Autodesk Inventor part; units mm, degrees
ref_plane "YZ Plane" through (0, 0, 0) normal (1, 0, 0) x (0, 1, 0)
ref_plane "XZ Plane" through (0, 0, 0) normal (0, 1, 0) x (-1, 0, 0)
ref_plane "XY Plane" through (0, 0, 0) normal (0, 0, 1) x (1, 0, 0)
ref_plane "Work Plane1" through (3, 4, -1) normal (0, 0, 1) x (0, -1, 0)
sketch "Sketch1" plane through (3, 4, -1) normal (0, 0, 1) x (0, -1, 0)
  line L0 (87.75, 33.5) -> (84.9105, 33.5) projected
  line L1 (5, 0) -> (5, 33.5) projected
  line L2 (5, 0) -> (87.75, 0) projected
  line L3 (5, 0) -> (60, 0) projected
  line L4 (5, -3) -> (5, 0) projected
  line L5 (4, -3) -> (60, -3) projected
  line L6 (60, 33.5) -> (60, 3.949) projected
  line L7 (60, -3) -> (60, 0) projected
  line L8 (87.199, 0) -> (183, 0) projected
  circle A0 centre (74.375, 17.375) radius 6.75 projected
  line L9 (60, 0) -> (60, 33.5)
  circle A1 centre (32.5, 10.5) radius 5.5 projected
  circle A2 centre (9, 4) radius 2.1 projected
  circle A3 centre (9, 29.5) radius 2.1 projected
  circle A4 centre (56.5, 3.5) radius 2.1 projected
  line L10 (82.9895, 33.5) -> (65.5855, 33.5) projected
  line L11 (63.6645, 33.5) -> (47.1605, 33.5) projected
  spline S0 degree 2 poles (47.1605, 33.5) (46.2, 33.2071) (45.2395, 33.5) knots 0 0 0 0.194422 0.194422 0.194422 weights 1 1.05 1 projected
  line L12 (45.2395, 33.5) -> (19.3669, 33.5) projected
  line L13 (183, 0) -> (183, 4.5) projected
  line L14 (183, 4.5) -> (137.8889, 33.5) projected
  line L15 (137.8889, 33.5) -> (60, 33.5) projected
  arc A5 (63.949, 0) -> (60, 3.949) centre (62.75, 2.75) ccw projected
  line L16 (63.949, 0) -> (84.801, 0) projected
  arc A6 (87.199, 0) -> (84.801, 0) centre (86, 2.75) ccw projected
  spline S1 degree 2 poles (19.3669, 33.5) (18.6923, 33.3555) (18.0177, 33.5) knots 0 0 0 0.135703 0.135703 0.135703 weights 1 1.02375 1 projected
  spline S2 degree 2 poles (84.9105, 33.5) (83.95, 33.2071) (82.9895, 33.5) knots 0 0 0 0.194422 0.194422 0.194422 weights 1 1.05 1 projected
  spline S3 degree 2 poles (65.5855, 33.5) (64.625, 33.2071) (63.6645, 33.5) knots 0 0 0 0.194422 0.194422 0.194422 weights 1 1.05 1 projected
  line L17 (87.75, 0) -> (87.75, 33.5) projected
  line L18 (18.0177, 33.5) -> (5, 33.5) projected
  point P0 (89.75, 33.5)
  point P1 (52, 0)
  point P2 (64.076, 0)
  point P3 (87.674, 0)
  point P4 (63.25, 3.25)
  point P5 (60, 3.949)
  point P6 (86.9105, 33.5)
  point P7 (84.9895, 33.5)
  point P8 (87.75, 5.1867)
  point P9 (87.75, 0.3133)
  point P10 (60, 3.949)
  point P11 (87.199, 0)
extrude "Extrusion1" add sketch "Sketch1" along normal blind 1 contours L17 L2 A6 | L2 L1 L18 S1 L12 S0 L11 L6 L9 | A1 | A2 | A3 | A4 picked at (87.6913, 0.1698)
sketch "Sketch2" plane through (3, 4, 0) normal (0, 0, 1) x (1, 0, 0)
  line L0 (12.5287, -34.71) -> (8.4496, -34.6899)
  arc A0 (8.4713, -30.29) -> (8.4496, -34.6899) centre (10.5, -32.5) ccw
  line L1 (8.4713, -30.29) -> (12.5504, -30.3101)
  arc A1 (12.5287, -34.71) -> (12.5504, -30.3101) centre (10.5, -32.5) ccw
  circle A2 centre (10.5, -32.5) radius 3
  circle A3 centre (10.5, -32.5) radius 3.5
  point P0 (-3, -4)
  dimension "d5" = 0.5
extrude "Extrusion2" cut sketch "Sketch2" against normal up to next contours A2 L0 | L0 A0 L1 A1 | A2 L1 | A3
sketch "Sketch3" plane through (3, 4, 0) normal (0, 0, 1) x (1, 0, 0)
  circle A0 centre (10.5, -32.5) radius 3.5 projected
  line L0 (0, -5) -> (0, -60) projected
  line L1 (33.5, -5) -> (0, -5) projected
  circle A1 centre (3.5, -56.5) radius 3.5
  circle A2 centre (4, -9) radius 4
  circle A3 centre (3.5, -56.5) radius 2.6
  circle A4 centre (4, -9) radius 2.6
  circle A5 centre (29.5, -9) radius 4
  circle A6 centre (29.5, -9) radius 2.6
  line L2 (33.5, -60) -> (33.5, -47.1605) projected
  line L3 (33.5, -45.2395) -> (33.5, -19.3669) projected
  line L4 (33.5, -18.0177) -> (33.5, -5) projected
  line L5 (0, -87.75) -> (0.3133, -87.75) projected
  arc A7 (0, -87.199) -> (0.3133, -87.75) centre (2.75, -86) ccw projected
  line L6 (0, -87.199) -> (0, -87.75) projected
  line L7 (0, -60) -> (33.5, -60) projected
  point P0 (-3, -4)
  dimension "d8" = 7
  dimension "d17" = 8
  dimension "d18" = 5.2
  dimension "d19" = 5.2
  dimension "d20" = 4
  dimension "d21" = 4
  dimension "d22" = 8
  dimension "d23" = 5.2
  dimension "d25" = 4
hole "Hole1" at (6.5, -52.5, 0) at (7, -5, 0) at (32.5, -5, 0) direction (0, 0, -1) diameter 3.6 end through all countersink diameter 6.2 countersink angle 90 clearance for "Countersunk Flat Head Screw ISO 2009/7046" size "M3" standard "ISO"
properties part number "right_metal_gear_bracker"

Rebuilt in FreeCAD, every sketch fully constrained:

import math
import FreeCAD as App
import Part
import Sketcher

doc = App.newDocument("Part")
params = doc.addObject("Spreadsheet::Sheet", "Params")
for row, (alias, value) in enumerate([
    ("sketch1_radius", "3 mm"),
    ("sketch1_height", "55 mm"),
    ("sketch1_width", "33.5 mm"),
    ("pad1_length", "1 mm"),
    ("sketch2_diameter", "7 mm"),
    ("sketch3_diameter", "3.6 mm"),
    ("hole_diameter", "3.6 mm"),
    ("hole_csink_diameter", "6.2 mm"),
], start=1):
    params.set(f"A{row}", alias)
    params.set(f"B{row}", "=" + value)
    params.setAlias(f"B{row}", alias)

body = doc.addObject("PartDesign::Body", "Body")
body.AllowCompound = True

# Sketch on XY plane
sketch1 = body.newObject("Sketcher::SketchObject", "Sketch")
sketch1.AttachmentSupport = (doc.getObject("XY_Plane"), [""])
sketch1.MapMode = "FlatFace"
sketch1.AttachmentOffset = App.Placement(App.Vector(0, 0, -1), App.Rotation())
sketch1.addGeometry(Part.LineSegment(App.Vector(3, -83.75, 0), App.Vector(3.313281, -83.75, 0)), False)
sketch1.addGeometry(Part.ArcOfCircle(Part.Circle(App.Vector(5.75, -82, 0), App.Vector(0, 0, 1), 3.000017), math.radians(-156.442798), math.radians(-144.314896)), False)
sketch1.addGeometry(Part.LineSegment(App.Vector(3, -83.199, 0), App.Vector(3, -83.75, 0)), False)
sketch1.addGeometry(Part.LineSegment(App.Vector(3, -1, 0), App.Vector(3, -56, 0)), False)
sketch1.addGeometry(Part.LineSegment(App.Vector(3, -56, 0), App.Vector(36.5, -56, 0)), False)
sketch1.addGeometry(Part.LineSegment(App.Vector(36.5, -56, 0), App.Vector(36.5, -43.1605, 0)), False)
sketch1.addGeometry(Part.BSplineCurve([App.Vector(36.5, -43.1605, 0), App.Vector(36.2071, -42.2, 0), App.Vector(36.5, -41.2395, 0)], [3, 3], [0, 0.194422], False, 2, [1, 1.05, 1], False), False)
sketch1.addGeometry(Part.LineSegment(App.Vector(36.5, -41.2395, 0), App.Vector(36.5, -15.3669, 0)), False)
sketch1.addGeometry(Part.BSplineCurve([App.Vector(36.5, -15.3669, 0), App.Vector(36.3555, -14.6923, 0), App.Vector(36.5, -14.0177, 0)], [3, 3], [0, 0.135703], False, 2, [1, 1.02375, 1], False), False)
sketch1.addGeometry(Part.LineSegment(App.Vector(36.5, -14.0177, 0), App.Vector(36.5, -1, 0)), False)
sketch1.addGeometry(Part.LineSegment(App.Vector(36.5, -1, 0), App.Vector(3, -1, 0)), False)
sketch1.addConstraint(Sketcher.Constraint("Block", 6))
sketch1.addConstraint(Sketcher.Constraint("Block", 8))
sketch1.addConstraint(Sketcher.Constraint("Coincident", 0, 2, 1, 2))
sketch1.addConstraint(Sketcher.Constraint("Coincident", 1, 1, 2, 1))
sketch1.addConstraint(Sketcher.Constraint("Coincident", 2, 2, 0, 1))
sketch1.addConstraint(Sketcher.Constraint("Coincident", 3, 2, 4, 1))
sketch1.addConstraint(Sketcher.Constraint("Coincident", 4, 2, 5, 1))
sketch1.addConstraint(Sketcher.Constraint("Coincident", 5, 2, 6, 1))
sketch1.addConstraint(Sketcher.Constraint("Coincident", 6, 2, 7, 1))
sketch1.addConstraint(Sketcher.Constraint("Coincident", 7, 2, 8, 1))
sketch1.addConstraint(Sketcher.Constraint("Coincident", 8, 2, 9, 1))
sketch1.addConstraint(Sketcher.Constraint("Coincident", 9, 2, 10, 1))
sketch1.addConstraint(Sketcher.Constraint("Coincident", 10, 2, 3, 1))
sketch1.addConstraint(Sketcher.Constraint("Horizontal", 0))
sketch1.addConstraint(Sketcher.Constraint("Vertical", 2))
sketch1.addConstraint(Sketcher.Constraint("Vertical", 3))
sketch1.addConstraint(Sketcher.Constraint("Horizontal", 4))
sketch1.addConstraint(Sketcher.Constraint("Vertical", 5))
sketch1.addConstraint(Sketcher.Constraint("Vertical", 9))
sketch1.addConstraint(Sketcher.Constraint("Horizontal", 10))
sketch1.addConstraint(Sketcher.Constraint("Vertical", 2, 2, 3, 2))
sketch1.addConstraint(Sketcher.Constraint("Radius", 1, 3.0))
sketch1.addConstraint(Sketcher.Constraint("DistanceY", 3, 2, 3, 1, 55.0))
sketch1.addConstraint(Sketcher.Constraint("DistanceX", 4, 1, 4, 2, 33.5))
sketch1.addConstraint(Sketcher.Constraint("DistanceY", 1, 3, -1, 1, 82.0))
sketch1.addConstraint(Sketcher.Constraint("DistanceY", 3, 2, -1, 1, 56.0))
sketch1.addConstraint(Sketcher.Constraint("DistanceY", 2, 2, 2, 1, 0.551))
sketch1.addConstraint(Sketcher.Constraint("DistanceX", -1, 1, 1, 3, 5.75))
sketch1.setExpression("Constraints[21]", "Params.sketch1_radius")
sketch1.setExpression("Constraints[22]", "Params.sketch1_height")
sketch1.setExpression("Constraints[23]", "Params.sketch1_width")
pad1 = body.newObject("PartDesign::Pad", "Pad")
pad1.Profile = sketch1
pad1.setExpression("Length", "Params.pad1_length")

# Sketch on XY plane
sketch2 = body.newObject("Sketcher::SketchObject", "Sketch001")
sketch2.AttachmentSupport = (doc.getObject("XY_Plane"), [""])
sketch2.MapMode = "FlatFace"
sketch2.addGeometry(Part.Circle(App.Vector(13.5, -28.5, 0), App.Vector(0, 0, 1), 3.5), False)
sketch2.addConstraint(Sketcher.Constraint("Diameter", 0, 7.0))
sketch2.addConstraint(Sketcher.Constraint("DistanceX", -1, 1, 0, 3, 13.5))
sketch2.addConstraint(Sketcher.Constraint("DistanceY", 0, 3, -1, 1, 28.5))
sketch2.setExpression("Constraints[0]", "Params.sketch2_diameter")
pocket1 = body.newObject("PartDesign::Pocket", "Pocket")
pocket1.Profile = sketch2
pocket1.Type = "UpToFirst"

# Sketch on XY plane
sketch3 = body.newObject("Sketcher::SketchObject", "Sketch002")
sketch3.AttachmentSupport = (doc.getObject("XY_Plane"), [""])
sketch3.MapMode = "FlatFace"
sketch3.addGeometry(Part.Circle(App.Vector(6.5, -52.5, 0), App.Vector(0, 0, 1), 1.8), False)
sketch3.addGeometry(Part.Circle(App.Vector(7, -5, 0), App.Vector(0, 0, 1), 1.8), False)
sketch3.addGeometry(Part.Circle(App.Vector(32.5, -5, 0), App.Vector(0, 0, 1), 1.8), False)
sketch3.addConstraint(Sketcher.Constraint("Equal", 0, 1))
sketch3.addConstraint(Sketcher.Constraint("Equal", 1, 2))
sketch3.addConstraint(Sketcher.Constraint("Horizontal", 1, 3, 2, 3))
sketch3.addConstraint(Sketcher.Constraint("Diameter", 0, 3.6))
sketch3.addConstraint(Sketcher.Constraint("DistanceX", -1, 1, 1, 3, 7.0))
sketch3.addConstraint(Sketcher.Constraint("DistanceY", 1, 3, -1, 1, 5.0))
sketch3.addConstraint(Sketcher.Constraint("DistanceX", 0, 3, 2, 3, 26.0))
sketch3.addConstraint(Sketcher.Constraint("DistanceX", -1, 1, 0, 3, 6.5))
sketch3.addConstraint(Sketcher.Constraint("DistanceY", 0, 3, -1, 1, 52.5))
sketch3.setExpression("Constraints[3]", "Params.sketch3_diameter")
doc.recompute()
hole = body.newObject("PartDesign::Hole", "Hole")
hole.Profile = sketch3
hole.ThreadType = "None"
hole.setExpression("Diameter", "Params.hole_diameter")
hole.DepthType = "ThroughAll"
hole.HoleCutType = "Countersink"
hole.setExpression("HoleCutDiameter", "Params.hole_csink_diameter")
hole.HoleCutCountersinkAngle = 90

doc.recompute()
